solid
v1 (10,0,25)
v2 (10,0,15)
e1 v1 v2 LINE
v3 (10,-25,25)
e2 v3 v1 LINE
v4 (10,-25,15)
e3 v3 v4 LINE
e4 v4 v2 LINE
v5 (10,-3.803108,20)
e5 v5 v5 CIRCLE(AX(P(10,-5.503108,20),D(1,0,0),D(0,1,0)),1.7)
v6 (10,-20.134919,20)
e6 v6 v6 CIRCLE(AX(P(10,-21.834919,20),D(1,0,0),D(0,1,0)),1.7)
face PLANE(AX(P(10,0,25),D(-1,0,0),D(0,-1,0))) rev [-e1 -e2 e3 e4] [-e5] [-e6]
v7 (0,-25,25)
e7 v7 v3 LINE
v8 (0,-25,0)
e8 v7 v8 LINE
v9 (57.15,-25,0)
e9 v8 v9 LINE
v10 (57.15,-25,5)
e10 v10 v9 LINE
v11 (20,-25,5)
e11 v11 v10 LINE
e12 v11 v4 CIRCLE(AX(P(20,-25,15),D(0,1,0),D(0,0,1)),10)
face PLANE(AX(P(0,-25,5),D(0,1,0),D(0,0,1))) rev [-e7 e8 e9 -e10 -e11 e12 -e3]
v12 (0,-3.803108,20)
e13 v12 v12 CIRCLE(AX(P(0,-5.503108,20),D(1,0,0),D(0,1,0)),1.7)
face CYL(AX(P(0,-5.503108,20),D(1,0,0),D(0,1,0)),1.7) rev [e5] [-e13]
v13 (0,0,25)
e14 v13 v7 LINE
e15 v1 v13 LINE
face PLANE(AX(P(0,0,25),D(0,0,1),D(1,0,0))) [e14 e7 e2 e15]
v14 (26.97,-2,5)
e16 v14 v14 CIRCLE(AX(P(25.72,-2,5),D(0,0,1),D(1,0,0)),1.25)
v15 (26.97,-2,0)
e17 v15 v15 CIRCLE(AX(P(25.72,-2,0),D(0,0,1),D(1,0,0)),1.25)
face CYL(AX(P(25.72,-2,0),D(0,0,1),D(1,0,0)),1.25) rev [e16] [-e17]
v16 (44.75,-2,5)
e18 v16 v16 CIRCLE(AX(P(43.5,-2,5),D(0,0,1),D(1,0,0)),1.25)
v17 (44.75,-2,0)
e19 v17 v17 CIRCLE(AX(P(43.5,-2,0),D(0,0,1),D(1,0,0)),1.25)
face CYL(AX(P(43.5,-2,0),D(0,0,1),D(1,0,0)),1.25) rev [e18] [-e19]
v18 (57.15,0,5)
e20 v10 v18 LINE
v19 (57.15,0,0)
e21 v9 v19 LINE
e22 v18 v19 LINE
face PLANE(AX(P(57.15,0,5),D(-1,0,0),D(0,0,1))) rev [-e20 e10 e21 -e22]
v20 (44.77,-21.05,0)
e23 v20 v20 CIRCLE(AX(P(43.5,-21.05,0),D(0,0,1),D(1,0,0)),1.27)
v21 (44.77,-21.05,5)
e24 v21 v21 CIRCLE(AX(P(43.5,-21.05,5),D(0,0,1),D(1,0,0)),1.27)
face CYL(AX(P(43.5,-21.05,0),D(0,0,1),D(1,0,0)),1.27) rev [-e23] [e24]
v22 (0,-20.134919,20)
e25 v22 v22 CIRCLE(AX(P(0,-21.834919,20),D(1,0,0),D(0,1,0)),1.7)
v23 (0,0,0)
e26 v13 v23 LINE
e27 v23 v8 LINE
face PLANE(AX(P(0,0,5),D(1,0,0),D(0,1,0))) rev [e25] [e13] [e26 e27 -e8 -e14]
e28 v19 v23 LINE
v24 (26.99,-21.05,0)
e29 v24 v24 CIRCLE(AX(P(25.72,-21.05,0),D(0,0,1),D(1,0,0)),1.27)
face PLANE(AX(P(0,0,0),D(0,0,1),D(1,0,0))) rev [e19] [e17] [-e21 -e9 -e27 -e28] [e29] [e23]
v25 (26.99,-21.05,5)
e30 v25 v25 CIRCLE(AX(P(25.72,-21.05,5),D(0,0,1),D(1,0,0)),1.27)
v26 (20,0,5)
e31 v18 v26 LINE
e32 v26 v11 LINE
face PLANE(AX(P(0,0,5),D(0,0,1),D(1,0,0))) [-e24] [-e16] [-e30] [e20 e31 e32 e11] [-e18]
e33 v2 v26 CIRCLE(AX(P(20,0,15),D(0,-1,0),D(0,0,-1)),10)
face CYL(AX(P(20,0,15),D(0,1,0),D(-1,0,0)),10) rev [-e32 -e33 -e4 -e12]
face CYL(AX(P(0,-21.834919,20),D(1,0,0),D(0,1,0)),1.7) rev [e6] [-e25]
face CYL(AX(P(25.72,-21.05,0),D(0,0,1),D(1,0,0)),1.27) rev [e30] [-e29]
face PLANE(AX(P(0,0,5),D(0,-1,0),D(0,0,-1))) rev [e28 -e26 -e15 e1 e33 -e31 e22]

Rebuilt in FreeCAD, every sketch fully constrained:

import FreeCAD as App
import Part
import Sketcher


def edges_at(feature, points):
    """Names of the edges that pass closest to the given points."""
    edges = feature.Shape.Edges
    near = lambda p: min(range(len(edges)), key=lambda i: edges[i].distToShape(Part.Vertex(*p))[0])
    return sorted({f"Edge{near(p) + 1}" for p in points})

doc = App.newDocument("Part")
body = doc.addObject("PartDesign::Body", "Body")

# Sketch on XY plane
sketch1 = body.newObject("Sketcher::SketchObject", "Sketch")
sketch1.AttachmentSupport = (doc.getObject("XY_Plane"), [""])
sketch1.MapMode = "FlatFace"
sketch1.addGeometry([
    Part.LineSegment(App.Vector(0, 0, 0), App.Vector(0, -25, 0)),
    Part.LineSegment(App.Vector(0, -25, 0), App.Vector(57, -25, 0)),
    Part.LineSegment(App.Vector(57, -25, 0), App.Vector(57, 0, 0)),
    Part.LineSegment(App.Vector(57, 0, 0), App.Vector(0, 0, 0)),
], False)
sketch1.addConstraint([
    Sketcher.Constraint("Coincident", 0, 2, 1, 1),
    Sketcher.Constraint("Coincident", 1, 2, 2, 1),
    Sketcher.Constraint("Coincident", 2, 2, 3, 1),
    Sketcher.Constraint("Coincident", 3, 2, 0, 1),
    Sketcher.Constraint("Vertical", 0),
    Sketcher.Constraint("Horizontal", 1),
    Sketcher.Constraint("Vertical", 2),
    Sketcher.Constraint("Horizontal", 3),
    Sketcher.Constraint("Coincident", 3, 2, -1, 1),
    Sketcher.Constraint("DistanceY", 0, 2, 0, 1, 25.0),
    Sketcher.Constraint("DistanceX", 1, 1, 1, 2, 57.15),
])
pad1 = body.newObject("PartDesign::Pad", "Pad")
pad1.Profile = sketch1
pad1.Length = 5

# Sketch on XY plane
sketch2 = body.newObject("Sketcher::SketchObject", "Sketch001")
sketch2.AttachmentSupport = (doc.getObject("XY_Plane"), [""])
sketch2.MapMode = "FlatFace"
sketch2.AttachmentOffset = App.Placement(App.Vector(0, 0, 5), App.Rotation())
sketch2.addGeometry([
    Part.Circle(App.Vector(25.7, -2, 0), App.Vector(0, 0, 1), 1.2),
    Part.Circle(App.Vector(43.5, -2, 0), App.Vector(0, 0, 1), 1.2),
    Part.Circle(App.Vector(25.7, -21.1, 0), App.Vector(0, 0, 1), 1.3),
    Part.Circle(App.Vector(43.5, -21.1, 0), App.Vector(0, 0, 1), 1.3),
], False)
sketch2.addConstraint([
    Sketcher.Constraint("Equal", 0, 1),
    Sketcher.Constraint("Equal", 2, 3),
    Sketcher.Constraint("Horizontal", 0, 3, 1, 3),
    Sketcher.Constraint("Horizontal", 2, 3, 3, 3),
    Sketcher.Constraint("Vertical", 0, 3, 2, 3),
    Sketcher.Constraint("Vertical", 1, 3, 3, 3),
    Sketcher.Constraint("Diameter", 0, 2.5),
    Sketcher.Constraint("Diameter", 2, 2.54),
    Sketcher.Constraint("DistanceY", 0, 3, -1, 1, 2.0),
    Sketcher.Constraint("DistanceX", -1, 1, 1, 3, 43.5),
    Sketcher.Constraint("DistanceX", -1, 1, 0, 3, 25.72),
    Sketcher.Constraint("DistanceY", 2, 3, -1, 1, 21.05),
])
pocket1 = body.newObject("PartDesign::Pocket", "Pocket")
pocket1.Profile = sketch2
pocket1.Type = "ThroughAll"

# Sketch on XY plane
sketch3 = body.newObject("Sketcher::SketchObject", "Sketch002")
sketch3.AttachmentSupport = (doc.getObject("XY_Plane"), [""])
sketch3.MapMode = "FlatFace"
sketch3.AttachmentOffset = App.Placement(App.Vector(0, 0, 5), App.Rotation())
sketch3.addGeometry([
    Part.LineSegment(App.Vector(0, 0, 0), App.Vector(0, -25, 0)),
    Part.LineSegment(App.Vector(0, -25, 0), App.Vector(10, -25, 0)),
    Part.LineSegment(App.Vector(10, -25, 0), App.Vector(10, 0, 0)),
    Part.LineSegment(App.Vector(10, 0, 0), App.Vector(0, 0, 0)),
], False)
sketch3.addConstraint([
    Sketcher.Constraint("Coincident", 0, 2, 1, 1),
    Sketcher.Constraint("Coincident", 1, 2, 2, 1),
    Sketcher.Constraint("Coincident", 2, 2, 3, 1),
    Sketcher.Constraint("Coincident", 3, 2, 0, 1),
    Sketcher.Constraint("Vertical", 0),
    Sketcher.Constraint("Horizontal", 1),
    Sketcher.Constraint("Vertical", 2),
    Sketcher.Constraint("Horizontal", 3),
    Sketcher.Constraint("Coincident", 3, 2, -1, 1),
    Sketcher.Constraint("DistanceX", 1, 1, 1, 2, 10.0),
    Sketcher.Constraint("DistanceY", 0, 2, 0, 1, 25.0),
])
pad2 = body.newObject("PartDesign::Pad", "Pad001")
pad2.Profile = sketch3
pad2.Length = 20
doc.recompute()

fillet = body.newObject("PartDesign::Fillet", "Fillet")
fillet.Base = (pad2, edges_at(pad2, [(10, -12.5, 5)]))
fillet.Radius = 10

# Sketch on YZ plane
sketch4 = body.newObject("Sketcher::SketchObject", "Sketch003")
sketch4.AttachmentSupport = (doc.getObject("YZ_Plane"), [""])
sketch4.MapMode = "FlatFace"
sketch4.AttachmentOffset = App.Placement(App.Vector(0, 0, 10), App.Rotation())
sketch4.addGeometry([
    Part.Circle(App.Vector(-21.8, 20, 0), App.Vector(0, 0, 1), 1.7),
    Part.Circle(App.Vector(-5.5, 20, 0), App.Vector(0, 0, 1), 1.7),
], False)
sketch4.addConstraint([
    Sketcher.Constraint("Equal", 0, 1),
    Sketcher.Constraint("Horizontal", 0, 3, 1, 3),
    Sketcher.Constraint("Diameter", 0, 3.4),
    Sketcher.Constraint("DistanceY", -1, 1, 0, 3, 20.0),
    Sketcher.Constraint("DistanceX", 0, 3, -1, 1, 21.834919),
    Sketcher.Constraint("DistanceX", 1, 3, -1, 1, 5.503108),
])
pocket2 = body.newObject("PartDesign::Pocket", "Pocket001")
pocket2.Profile = sketch4
pocket2.Type = "ThroughAll"

doc.recompute()
